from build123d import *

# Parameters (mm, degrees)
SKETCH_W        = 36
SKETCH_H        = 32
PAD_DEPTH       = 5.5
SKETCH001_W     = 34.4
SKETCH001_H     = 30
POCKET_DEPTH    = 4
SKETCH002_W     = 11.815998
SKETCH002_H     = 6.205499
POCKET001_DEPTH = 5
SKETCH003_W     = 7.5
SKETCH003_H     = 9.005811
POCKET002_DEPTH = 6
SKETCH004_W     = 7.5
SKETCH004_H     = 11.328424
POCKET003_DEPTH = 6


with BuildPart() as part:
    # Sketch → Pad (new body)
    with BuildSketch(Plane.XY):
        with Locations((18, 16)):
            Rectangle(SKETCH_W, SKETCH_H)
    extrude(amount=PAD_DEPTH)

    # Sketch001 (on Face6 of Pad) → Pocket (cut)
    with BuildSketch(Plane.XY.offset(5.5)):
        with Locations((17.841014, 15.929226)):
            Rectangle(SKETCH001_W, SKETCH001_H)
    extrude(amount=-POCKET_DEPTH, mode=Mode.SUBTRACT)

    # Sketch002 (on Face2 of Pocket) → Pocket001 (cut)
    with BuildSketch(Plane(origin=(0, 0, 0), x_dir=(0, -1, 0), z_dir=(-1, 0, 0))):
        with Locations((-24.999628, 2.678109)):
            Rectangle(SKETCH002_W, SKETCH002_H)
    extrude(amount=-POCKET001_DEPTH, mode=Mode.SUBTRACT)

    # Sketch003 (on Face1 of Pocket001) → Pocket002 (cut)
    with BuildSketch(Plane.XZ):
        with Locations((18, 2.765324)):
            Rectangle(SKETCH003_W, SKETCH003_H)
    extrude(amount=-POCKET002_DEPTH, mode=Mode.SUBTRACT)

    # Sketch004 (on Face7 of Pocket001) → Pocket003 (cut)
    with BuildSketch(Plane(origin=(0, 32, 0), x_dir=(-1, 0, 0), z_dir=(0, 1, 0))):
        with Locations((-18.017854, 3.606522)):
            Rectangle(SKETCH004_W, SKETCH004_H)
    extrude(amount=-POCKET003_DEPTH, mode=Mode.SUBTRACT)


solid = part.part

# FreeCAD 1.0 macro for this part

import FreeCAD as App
import Part
import Sketcher
Q = App.Units.Quantity

doc = App.newDocument("Part")
body = doc.addObject("PartDesign::Body", "Body")

sketch1 = body.newObject("Sketcher::SketchObject", "Sketch")
sketch1.AttachmentSupport = (doc.getObject("XY_Plane"), [""])
sketch1.MapMode = "FlatFace"
sketch1.addGeometry([
    Part.LineSegment(App.Vector(0, 32, 0), App.Vector(0, 0, 0)),
    Part.LineSegment(App.Vector(0, 0, 0), App.Vector(36, 0, 0)),
    Part.LineSegment(App.Vector(36, 0, 0), App.Vector(36, 32, 0)),
    Part.LineSegment(App.Vector(36, 32, 0), App.Vector(0, 32, 0)),
], False)
sketch1.addConstraint([
    Sketcher.Constraint("Coincident", 0, 2, 1, 1),
    Sketcher.Constraint("Coincident", 1, 2, 2, 1),
    Sketcher.Constraint("Coincident", 2, 2, 3, 1),
    Sketcher.Constraint("Coincident", 3, 2, 0, 1),
    Sketcher.Constraint("Vertical", 0),
    Sketcher.Constraint("Horizontal", 1),
    Sketcher.Constraint("Vertical", 2),
    Sketcher.Constraint("Horizontal", 3),
    Sketcher.Constraint("Coincident", 0, 2, -1, 1),
    Sketcher.Constraint("DistanceX", 1, 1, 1, 2, Q("36 mm")),
    Sketcher.Constraint("DistanceY", 0, 2, 0, 1, Q("32 mm")),
])
pad1 = body.newObject("PartDesign::Pad", "Pad")
pad1.Profile = sketch1
pad1.Length = 5.5

sketch2 = body.newObject("Sketcher::SketchObject", "Sketch001")
sketch2.AttachmentSupport = (doc.getObject("XY_Plane"), [""])
sketch2.MapMode = "FlatFace"
sketch2.AttachmentOffset = App.Placement(App.Vector(0, 0, 5.5), App.Rotation())
sketch2.addGeometry([
    Part.LineSegment(App.Vector(1, 31, 0), App.Vector(1, 1, 0)),
    Part.LineSegment(App.Vector(1, 1, 0), App.Vector(35, 1, 0)),
    Part.LineSegment(App.Vector(35, 1, 0), App.Vector(35, 31, 0)),
    Part.LineSegment(App.Vector(35, 31, 0), App.Vector(1, 31, 0)),
], False)
sketch2.addConstraint([
    Sketcher.Constraint("Coincident", 0, 2, 1, 1),
    Sketcher.Constraint("Coincident", 1, 2, 2, 1),
    Sketcher.Constraint("Coincident", 2, 2, 3, 1),
    Sketcher.Constraint("Coincident", 3, 2, 0, 1),
    Sketcher.Constraint("Vertical", 0),
    Sketcher.Constraint("Horizontal", 1),
    Sketcher.Constraint("Vertical", 2),
    Sketcher.Constraint("Horizontal", 3),
    Sketcher.Constraint("DistanceY", 0, 2, 0, 1, Q("30 mm")),
    Sketcher.Constraint("DistanceX", 1, 1, 1, 2, Q("34.4 mm")),
    Sketcher.Constraint("DistanceX", -1, 1, 0, 2, Q("0.641014 mm")),
    Sketcher.Constraint("DistanceY", -1, 1, 0, 2, Q("0.929226 mm")),
])
pocket1 = body.newObject("PartDesign::Pocket", "Pocket")
pocket1.Profile = sketch2
pocket1.Length = 4

sketch3 = body.newObject("Sketcher::SketchObject", "Sketch002")
sketch3.AttachmentSupport = (doc.getObject("YZ_Plane"), [""])
sketch3.MapMode = "FlatFace"
sketch3.addGeometry([
    Part.LineSegment(App.Vector(31, 6, 0), App.Vector(31, 0, 0)),
    Part.LineSegment(App.Vector(31, 0, 0), App.Vector(19, 0, 0)),
    Part.LineSegment(App.Vector(19, 0, 0), App.Vector(19, 6, 0)),
    Part.LineSegment(App.Vector(19, 6, 0), App.Vector(31, 6, 0)),
], False)
sketch3.addConstraint([
    Sketcher.Constraint("Coincident", 0, 2, 1, 1),
    Sketcher.Constraint("Coincident", 1, 2, 2, 1),
    Sketcher.Constraint("Coincident", 2, 2, 3, 1),
    Sketcher.Constraint("Coincident", 3, 2, 0, 1),
    Sketcher.Constraint("Vertical", 0),
    Sketcher.Constraint("Horizontal", 1),
    Sketcher.Constraint("Vertical", 2),
    Sketcher.Constraint("Horizontal", 3),
    Sketcher.Constraint("DistanceY", 0, 2, 0, 1, Q("6.205499 mm")),
    Sketcher.Constraint("DistanceX", 1, 2, 1, 1, Q("11.815998 mm")),
    Sketcher.Constraint("DistanceY", 0, 2, -1, 1, Q("0.42464 mm")),
    Sketcher.Constraint("DistanceX", -1, 1, 1, 2, Q("19.091629 mm")),
])
pocket2 = body.newObject("PartDesign::Pocket", "Pocket001")
pocket2.Profile = sketch3
pocket2.Length = 5
pocket2.Reversed = True

sketch4 = body.newObject("Sketcher::SketchObject", "Sketch003")
sketch4.AttachmentSupport = (doc.getObject("XZ_Plane"), [""])
sketch4.MapMode = "FlatFace"
sketch4.addGeometry([
    Part.LineSegment(App.Vector(14, 7, 0), App.Vector(14, -2, 0)),
    Part.LineSegment(App.Vector(14, -2, 0), App.Vector(22, -2, 0)),
    Part.LineSegment(App.Vector(22, -2, 0), App.Vector(22, 7, 0)),
    Part.LineSegment(App.Vector(22, 7, 0), App.Vector(14, 7, 0)),
], False)
sketch4.addConstraint([
    Sketcher.Constraint("Coincident", 0, 2, 1, 1),
    Sketcher.Constraint("Coincident", 1, 2, 2, 1),
    Sketcher.Constraint("Coincident", 2, 2, 3, 1),
    Sketcher.Constraint("Coincident", 3, 2, 0, 1),
    Sketcher.Constraint("Vertical", 0),
    Sketcher.Constraint("Horizontal", 1),
    Sketcher.Constraint("Vertical", 2),
    Sketcher.Constraint("Horizontal", 3),
    Sketcher.Constraint("DistanceX", 1, 1, 1, 2, Q("7.5 mm")),
    Sketcher.Constraint("DistanceX", -1, 1, 0, 2, Q("14.25 mm")),
    Sketcher.Constraint("DistanceY", 0, 2, 0, 1, Q("9.005811 mm")),
    Sketcher.Constraint("DistanceY", 0, 2, -1, 1, Q("1.737581 mm")),
])
pocket3 = body.newObject("PartDesign::Pocket", "Pocket002")
pocket3.Profile = sketch4
pocket3.Length = 6

sketch5 = body.newObject("Sketcher::SketchObject", "Sketch004")
sketch5.AttachmentSupport = (doc.getObject("XZ_Plane"), [""])
sketch5.MapMode = "FlatFace"
sketch5.AttachmentOffset = App.Placement(App.Vector(0, 0, -32), App.Rotation())
sketch5.addGeometry([
    Part.LineSegment(App.Vector(22, 9, 0), App.Vector(22, -2, 0)),
    Part.LineSegment(App.Vector(22, -2, 0), App.Vector(14, -2, 0)),
    Part.LineSegment(App.Vector(14, -2, 0), App.Vector(14, 9, 0)),
    Part.LineSegment(App.Vector(14, 9, 0), App.Vector(22, 9, 0)),
], False)
sketch5.addConstraint([
    Sketcher.Constraint("Coincident", 0, 2, 1, 1),
    Sketcher.Constraint("Coincident", 1, 2, 2, 1),
    Sketcher.Constraint("Coincident", 2, 2, 3, 1),
    Sketcher.Constraint("Coincident", 3, 2, 0, 1),
    Sketcher.Constraint("Vertical", 0),
    Sketcher.Constraint("Horizontal", 1),
    Sketcher.Constraint("Vertical", 2),
    Sketcher.Constraint("Horizontal", 3),
    Sketcher.Constraint("DistanceX", 1, 2, 1, 1, Q("7.5 mm")),
    Sketcher.Constraint("DistanceY", 0, 2, 0, 1, Q("11.328424 mm")),
    Sketcher.Constraint("DistanceY", 0, 2, -1, 1, Q("2.05769 mm")),
    Sketcher.Constraint("DistanceX", -1, 1, 0, 2, Q("21.767854 mm")),
])
pocket4 = body.newObject("PartDesign::Pocket", "Pocket003")
pocket4.Profile = sketch5
pocket4.Length = 6
pocket4.Reversed = True

doc.recompute()
